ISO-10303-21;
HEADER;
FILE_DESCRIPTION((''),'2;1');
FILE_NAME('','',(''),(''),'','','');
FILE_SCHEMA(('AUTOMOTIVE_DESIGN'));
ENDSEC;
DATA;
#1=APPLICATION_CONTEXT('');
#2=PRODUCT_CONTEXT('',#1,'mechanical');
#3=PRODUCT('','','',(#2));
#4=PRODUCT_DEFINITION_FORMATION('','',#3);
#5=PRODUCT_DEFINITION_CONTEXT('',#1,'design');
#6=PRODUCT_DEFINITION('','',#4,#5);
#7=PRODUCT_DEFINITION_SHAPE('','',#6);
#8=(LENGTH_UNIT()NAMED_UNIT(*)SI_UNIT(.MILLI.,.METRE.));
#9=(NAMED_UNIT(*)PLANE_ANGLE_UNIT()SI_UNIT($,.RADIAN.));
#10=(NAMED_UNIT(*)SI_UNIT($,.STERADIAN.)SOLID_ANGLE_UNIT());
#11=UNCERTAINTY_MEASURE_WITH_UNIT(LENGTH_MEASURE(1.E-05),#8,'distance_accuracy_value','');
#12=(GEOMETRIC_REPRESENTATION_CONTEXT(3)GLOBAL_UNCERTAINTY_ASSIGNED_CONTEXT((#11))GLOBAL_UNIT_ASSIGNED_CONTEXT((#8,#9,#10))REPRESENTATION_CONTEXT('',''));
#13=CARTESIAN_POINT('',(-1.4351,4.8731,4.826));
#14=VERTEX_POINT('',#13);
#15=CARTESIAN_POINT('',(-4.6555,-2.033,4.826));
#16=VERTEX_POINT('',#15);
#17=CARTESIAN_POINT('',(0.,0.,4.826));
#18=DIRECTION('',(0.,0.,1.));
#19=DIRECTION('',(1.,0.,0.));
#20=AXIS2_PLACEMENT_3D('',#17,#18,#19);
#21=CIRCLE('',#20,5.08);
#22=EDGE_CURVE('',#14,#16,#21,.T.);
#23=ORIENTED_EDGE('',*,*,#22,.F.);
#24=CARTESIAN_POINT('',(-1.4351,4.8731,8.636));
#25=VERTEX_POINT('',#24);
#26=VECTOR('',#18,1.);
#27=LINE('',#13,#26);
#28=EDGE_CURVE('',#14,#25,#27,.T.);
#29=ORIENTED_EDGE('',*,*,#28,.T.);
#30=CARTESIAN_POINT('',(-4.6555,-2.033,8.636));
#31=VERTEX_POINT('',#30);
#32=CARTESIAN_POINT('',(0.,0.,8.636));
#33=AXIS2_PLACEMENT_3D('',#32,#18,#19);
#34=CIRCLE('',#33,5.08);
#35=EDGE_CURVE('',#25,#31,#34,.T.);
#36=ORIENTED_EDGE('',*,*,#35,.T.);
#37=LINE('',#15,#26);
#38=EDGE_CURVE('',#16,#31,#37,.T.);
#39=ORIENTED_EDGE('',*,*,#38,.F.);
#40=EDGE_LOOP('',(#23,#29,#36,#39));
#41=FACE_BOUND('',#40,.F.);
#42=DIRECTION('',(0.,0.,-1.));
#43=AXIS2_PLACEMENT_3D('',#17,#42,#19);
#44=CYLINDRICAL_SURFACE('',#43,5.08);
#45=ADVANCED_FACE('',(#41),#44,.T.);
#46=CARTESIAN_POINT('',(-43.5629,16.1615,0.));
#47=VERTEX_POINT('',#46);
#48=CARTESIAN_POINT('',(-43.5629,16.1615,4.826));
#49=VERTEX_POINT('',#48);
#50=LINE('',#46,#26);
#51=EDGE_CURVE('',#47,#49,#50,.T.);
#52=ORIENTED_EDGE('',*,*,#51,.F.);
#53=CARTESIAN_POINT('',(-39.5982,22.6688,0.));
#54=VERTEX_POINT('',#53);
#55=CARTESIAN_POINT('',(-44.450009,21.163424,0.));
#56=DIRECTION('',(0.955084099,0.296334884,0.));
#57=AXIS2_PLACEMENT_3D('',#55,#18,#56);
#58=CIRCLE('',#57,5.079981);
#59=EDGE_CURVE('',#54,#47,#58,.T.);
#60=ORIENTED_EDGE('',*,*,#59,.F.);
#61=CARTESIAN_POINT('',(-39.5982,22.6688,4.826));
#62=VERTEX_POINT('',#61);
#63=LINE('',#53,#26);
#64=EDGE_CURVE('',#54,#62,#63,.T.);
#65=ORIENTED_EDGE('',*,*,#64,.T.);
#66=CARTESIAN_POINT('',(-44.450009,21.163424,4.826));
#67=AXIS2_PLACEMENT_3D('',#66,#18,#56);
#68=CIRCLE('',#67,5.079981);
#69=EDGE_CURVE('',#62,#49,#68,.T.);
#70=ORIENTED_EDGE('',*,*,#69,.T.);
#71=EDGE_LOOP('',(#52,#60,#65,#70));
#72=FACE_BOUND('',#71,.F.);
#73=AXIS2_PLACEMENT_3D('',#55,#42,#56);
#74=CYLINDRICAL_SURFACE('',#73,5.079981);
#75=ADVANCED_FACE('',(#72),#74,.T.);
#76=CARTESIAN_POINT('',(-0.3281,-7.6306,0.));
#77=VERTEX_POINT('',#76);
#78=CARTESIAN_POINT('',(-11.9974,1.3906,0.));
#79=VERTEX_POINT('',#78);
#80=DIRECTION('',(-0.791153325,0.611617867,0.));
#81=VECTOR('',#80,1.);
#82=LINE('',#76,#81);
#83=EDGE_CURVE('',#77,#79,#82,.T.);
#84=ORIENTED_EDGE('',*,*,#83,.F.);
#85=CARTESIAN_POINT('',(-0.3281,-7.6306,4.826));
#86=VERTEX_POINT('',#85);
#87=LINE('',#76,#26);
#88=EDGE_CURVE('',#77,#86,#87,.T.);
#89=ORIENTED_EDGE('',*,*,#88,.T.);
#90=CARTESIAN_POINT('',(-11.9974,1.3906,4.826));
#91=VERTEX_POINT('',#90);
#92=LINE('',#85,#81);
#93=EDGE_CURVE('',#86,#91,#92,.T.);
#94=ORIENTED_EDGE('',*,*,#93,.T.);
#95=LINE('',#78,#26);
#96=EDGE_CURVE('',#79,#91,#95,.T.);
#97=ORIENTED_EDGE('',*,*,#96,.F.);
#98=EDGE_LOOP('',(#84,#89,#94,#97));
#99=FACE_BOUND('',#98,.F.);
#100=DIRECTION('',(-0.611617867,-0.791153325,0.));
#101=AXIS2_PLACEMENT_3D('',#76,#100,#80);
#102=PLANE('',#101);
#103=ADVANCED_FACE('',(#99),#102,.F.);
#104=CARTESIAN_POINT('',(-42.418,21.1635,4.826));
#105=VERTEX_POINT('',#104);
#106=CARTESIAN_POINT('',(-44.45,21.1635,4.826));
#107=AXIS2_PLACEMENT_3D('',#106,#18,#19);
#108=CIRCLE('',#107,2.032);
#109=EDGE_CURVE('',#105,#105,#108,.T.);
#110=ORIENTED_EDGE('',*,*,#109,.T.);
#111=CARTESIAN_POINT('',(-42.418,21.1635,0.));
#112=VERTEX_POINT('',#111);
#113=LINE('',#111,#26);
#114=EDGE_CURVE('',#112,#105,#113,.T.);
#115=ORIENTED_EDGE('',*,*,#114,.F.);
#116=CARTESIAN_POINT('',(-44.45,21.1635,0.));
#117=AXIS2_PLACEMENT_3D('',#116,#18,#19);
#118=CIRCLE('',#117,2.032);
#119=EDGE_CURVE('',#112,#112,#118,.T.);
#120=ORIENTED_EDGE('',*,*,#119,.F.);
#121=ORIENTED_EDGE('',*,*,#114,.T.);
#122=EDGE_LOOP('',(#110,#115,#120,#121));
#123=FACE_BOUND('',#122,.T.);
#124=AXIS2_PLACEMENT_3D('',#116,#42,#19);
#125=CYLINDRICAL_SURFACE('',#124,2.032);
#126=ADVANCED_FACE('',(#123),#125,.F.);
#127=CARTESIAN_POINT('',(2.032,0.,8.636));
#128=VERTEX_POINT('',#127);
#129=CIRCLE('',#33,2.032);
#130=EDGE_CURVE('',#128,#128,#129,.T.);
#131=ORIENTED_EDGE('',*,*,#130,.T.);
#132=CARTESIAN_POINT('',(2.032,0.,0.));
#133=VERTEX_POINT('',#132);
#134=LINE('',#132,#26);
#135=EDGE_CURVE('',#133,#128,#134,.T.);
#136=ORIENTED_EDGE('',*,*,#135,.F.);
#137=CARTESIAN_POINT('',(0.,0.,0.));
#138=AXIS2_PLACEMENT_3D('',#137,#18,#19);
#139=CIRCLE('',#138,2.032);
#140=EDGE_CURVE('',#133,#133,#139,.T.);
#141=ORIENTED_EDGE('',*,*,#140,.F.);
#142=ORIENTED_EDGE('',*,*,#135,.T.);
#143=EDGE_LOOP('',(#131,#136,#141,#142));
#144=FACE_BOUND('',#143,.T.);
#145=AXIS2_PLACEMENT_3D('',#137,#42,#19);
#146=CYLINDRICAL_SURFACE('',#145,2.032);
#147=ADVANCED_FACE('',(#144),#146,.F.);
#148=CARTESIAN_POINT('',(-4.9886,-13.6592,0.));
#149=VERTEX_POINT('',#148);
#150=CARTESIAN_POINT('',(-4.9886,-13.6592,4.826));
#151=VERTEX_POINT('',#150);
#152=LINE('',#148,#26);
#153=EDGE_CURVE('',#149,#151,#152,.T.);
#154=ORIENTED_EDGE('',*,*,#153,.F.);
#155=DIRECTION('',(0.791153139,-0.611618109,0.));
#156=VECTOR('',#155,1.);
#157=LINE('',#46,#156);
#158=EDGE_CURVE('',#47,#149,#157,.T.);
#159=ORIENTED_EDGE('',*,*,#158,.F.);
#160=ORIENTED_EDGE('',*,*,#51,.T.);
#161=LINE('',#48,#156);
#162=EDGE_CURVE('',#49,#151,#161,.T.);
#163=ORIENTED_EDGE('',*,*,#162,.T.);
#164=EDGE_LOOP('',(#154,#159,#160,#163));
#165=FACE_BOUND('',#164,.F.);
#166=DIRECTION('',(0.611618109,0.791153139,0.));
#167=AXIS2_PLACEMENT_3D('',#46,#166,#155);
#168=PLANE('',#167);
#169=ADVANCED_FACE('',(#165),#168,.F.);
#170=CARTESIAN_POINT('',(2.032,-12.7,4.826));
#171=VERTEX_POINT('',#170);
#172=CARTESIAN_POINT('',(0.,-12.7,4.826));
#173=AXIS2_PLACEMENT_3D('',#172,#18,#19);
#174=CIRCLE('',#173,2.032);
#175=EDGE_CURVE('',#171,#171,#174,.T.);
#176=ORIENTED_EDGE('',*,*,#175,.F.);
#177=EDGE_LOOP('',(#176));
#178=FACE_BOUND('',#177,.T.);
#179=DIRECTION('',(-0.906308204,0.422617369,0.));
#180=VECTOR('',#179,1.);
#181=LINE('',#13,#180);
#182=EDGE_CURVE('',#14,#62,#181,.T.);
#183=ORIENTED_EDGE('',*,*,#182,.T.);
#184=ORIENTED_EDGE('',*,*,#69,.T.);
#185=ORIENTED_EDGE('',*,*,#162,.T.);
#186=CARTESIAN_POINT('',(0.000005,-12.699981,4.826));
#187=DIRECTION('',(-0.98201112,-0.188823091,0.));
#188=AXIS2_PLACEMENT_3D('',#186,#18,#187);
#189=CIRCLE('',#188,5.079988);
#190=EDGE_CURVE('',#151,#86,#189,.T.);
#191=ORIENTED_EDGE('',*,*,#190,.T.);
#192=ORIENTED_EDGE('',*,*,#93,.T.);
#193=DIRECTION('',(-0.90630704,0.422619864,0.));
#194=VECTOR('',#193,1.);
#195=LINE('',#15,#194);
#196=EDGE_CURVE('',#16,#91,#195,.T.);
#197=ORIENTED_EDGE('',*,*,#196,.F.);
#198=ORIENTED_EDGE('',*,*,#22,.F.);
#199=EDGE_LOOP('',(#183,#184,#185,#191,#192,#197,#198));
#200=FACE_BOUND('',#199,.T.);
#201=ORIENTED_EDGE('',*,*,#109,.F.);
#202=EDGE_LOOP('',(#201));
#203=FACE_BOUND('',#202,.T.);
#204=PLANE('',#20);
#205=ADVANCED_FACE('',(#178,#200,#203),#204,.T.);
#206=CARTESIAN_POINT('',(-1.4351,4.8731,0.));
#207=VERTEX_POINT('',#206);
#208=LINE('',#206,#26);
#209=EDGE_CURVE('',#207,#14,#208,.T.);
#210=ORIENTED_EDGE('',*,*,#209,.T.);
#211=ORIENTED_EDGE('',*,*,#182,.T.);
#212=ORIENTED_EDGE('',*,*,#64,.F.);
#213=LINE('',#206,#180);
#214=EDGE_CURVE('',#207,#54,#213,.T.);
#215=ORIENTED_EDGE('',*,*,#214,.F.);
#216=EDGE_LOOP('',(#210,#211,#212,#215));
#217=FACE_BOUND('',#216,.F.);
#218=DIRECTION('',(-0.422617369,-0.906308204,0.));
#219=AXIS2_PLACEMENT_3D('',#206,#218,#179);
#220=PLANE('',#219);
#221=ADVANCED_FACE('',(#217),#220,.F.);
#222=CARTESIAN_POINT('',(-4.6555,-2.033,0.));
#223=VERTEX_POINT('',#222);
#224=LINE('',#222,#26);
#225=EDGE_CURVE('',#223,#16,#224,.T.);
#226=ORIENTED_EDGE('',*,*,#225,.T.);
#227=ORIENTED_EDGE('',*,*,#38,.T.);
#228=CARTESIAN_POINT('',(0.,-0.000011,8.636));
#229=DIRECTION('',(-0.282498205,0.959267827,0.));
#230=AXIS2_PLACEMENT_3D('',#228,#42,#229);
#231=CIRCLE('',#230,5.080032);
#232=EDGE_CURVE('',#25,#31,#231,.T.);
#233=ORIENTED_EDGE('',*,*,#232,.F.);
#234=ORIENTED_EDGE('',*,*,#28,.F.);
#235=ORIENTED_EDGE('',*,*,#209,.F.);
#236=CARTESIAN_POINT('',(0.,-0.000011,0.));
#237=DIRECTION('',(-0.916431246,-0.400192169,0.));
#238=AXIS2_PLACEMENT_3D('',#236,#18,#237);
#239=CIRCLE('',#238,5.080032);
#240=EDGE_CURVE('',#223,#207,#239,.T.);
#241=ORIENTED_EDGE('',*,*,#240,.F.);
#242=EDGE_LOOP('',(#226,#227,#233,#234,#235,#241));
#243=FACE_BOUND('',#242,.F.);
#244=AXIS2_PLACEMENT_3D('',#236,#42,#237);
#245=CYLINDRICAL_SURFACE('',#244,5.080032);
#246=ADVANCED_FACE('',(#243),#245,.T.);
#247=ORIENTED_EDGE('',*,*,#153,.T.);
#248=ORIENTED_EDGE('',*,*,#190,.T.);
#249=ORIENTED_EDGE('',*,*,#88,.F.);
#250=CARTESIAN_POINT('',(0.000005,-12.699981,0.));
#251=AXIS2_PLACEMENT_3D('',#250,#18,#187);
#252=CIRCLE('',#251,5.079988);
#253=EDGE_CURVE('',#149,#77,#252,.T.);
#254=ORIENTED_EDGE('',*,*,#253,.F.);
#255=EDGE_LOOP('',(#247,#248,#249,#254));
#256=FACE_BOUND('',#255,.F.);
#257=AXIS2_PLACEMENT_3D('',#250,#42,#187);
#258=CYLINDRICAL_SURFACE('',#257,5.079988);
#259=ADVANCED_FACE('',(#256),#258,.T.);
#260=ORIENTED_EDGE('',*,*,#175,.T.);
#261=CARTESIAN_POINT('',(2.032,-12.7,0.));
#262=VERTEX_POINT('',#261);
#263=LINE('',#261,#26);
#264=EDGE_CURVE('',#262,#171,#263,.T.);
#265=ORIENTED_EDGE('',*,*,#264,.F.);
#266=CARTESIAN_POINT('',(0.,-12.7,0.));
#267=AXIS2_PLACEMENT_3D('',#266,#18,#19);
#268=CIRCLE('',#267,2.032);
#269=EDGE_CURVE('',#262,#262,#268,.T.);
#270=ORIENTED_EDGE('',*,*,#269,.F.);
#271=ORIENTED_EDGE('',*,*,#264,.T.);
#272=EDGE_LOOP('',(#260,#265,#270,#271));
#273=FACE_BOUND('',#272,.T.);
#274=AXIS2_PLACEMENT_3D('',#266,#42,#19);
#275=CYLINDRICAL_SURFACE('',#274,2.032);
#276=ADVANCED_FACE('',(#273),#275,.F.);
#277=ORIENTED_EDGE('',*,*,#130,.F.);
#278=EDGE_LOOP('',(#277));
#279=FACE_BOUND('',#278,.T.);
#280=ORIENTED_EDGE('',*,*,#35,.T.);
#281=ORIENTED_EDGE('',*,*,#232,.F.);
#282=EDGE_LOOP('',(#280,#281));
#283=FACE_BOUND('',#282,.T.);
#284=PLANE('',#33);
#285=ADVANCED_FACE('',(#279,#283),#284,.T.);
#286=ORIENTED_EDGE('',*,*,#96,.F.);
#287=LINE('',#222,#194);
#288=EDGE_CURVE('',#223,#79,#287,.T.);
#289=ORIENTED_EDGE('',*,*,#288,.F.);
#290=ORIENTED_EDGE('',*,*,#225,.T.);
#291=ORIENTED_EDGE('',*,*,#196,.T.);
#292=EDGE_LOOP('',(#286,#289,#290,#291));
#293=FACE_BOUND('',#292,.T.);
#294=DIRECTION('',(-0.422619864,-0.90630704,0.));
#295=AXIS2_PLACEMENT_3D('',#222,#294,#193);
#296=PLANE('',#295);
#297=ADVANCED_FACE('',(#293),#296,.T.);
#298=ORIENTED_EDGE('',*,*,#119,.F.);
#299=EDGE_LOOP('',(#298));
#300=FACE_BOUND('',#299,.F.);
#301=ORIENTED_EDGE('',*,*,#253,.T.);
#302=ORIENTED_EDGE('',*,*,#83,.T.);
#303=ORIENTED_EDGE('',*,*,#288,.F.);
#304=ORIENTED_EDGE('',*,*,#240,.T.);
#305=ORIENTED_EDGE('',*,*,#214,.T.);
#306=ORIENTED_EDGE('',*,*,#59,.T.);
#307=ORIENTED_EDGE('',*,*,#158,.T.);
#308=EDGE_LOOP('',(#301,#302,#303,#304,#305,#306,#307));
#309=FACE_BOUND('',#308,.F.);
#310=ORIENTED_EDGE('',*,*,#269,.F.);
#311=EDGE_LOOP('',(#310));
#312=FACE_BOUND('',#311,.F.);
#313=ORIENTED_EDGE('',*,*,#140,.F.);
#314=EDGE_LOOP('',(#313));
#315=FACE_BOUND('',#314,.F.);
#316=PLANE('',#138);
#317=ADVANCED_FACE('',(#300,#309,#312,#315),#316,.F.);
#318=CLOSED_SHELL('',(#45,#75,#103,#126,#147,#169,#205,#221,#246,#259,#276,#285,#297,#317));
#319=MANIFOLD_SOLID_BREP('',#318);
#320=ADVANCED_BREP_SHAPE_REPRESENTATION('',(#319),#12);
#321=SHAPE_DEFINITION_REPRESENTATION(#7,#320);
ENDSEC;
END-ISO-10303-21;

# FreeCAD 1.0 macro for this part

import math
import FreeCAD as App
import Part
import Sketcher
Q = App.Units.Quantity

doc = App.newDocument("Part")
body = doc.addObject("PartDesign::Body", "Body")

# Sketch on XY plane
sketch1 = doc.addObject("Sketcher::SketchObject", "Sketch")
body.addObject(sketch1)
sketch1.AttachmentSupport = (doc.XY_Plane, [""])
sketch1.MapMode = "FlatFace"
sketch1.addGeometry(Part.LineSegment(App.Vector(-12, 1.4, 0), App.Vector(-4.7, -2, 0)), False)
sketch1.addGeometry(Part.ArcOfCircle(Part.Circle(App.Vector(0, 0, 0), App.Vector(0, 0, 1), 5.1), math.radians(-156), math.radians(106)), False)
sketch1.addGeometry(Part.LineSegment(App.Vector(-1.4, 4.9, 0), App.Vector(-39.6, 22.7, 0)), False)
sketch1.addGeometry(Part.ArcOfCircle(Part.Circle(App.Vector(-44.5, 21.2, 0), App.Vector(0, 0, 1), 5.1), math.radians(17), math.radians(280)), False)
sketch1.addGeometry(Part.LineSegment(App.Vector(-43.6, 16.2, 0), App.Vector(-5, -13.7, 0)), False)
sketch1.addGeometry(Part.ArcOfCircle(Part.Circle(App.Vector(0, -12.7, 0), App.Vector(0, 0, 1), 5.1), math.radians(-169), math.radians(94)), False)
sketch1.addGeometry(Part.LineSegment(App.Vector(-0.3, -7.6, 0), App.Vector(-12, 1.4, 0)), False)
sketch1.addGeometry(Part.Circle(App.Vector(0, -12.7, 0), App.Vector(0, 0, 1), 2), False)
sketch1.addGeometry(Part.Circle(App.Vector(0, 0, 0), App.Vector(0, 0, 1), 2), False)
sketch1.addGeometry(Part.Circle(App.Vector(-44.5, 21.2, 0), App.Vector(0, 0, 1), 2), False)
sketch1.addConstraint(Sketcher.Constraint("Coincident", 0, 2, 1, 1))
sketch1.addConstraint(Sketcher.Constraint("Coincident", 1, 2, 2, 1))
sketch1.addConstraint(Sketcher.Constraint("Coincident", 2, 2, 3, 1))
sketch1.addConstraint(Sketcher.Constraint("Coincident", 3, 2, 4, 1))
sketch1.addConstraint(Sketcher.Constraint("Coincident", 4, 2, 5, 1))
sketch1.addConstraint(Sketcher.Constraint("Coincident", 5, 2, 6, 1))
sketch1.addConstraint(Sketcher.Constraint("Coincident", 6, 2, 0, 1))
sketch1.addConstraint(Sketcher.Constraint("Coincident", 1, 3, -1, 1))
sketch1.addConstraint(Sketcher.Constraint("Coincident", 8, 3, -1, 1))
sketch1.addConstraint(Sketcher.Constraint("Coincident", 7, 3, 5, 3))
sketch1.addConstraint(Sketcher.Constraint("Coincident", 9, 3, 3, 3))
sketch1.addConstraint(Sketcher.Constraint("Equal", 1, 3))
sketch1.addConstraint(Sketcher.Constraint("Equal", 3, 5))
sketch1.addConstraint(Sketcher.Constraint("Equal", 7, 8))
sketch1.addConstraint(Sketcher.Constraint("Equal", 8, 9))
sketch1.addConstraint(Sketcher.Constraint("PointOnObject", 5, 3, -2))
sketch1.addConstraint(Sketcher.Constraint("Parallel", 0, 2))
sketch1.addConstraint(Sketcher.Constraint("Parallel", 4, 6))
sketch1.addConstraint(Sketcher.Constraint("Radius", 1, Q("0.2 in")))
sketch1.addConstraint(Sketcher.Constraint("Diameter", 7, Q("0.16 in")))
sketch1.addConstraint(Sketcher.Constraint("Angle", 0, Q("-25 deg")))
sketch1.addConstraint(Sketcher.Constraint("DistanceY", 5, 3, -1, 1, Q("0.5 in")))
sketch1.addConstraint(Sketcher.Constraint("DistanceX", 3, 3, -1, 1, Q("1.75 in")))
sketch1.addConstraint(Sketcher.Constraint("Distance", 2, Q("1.6578 in")))
sketch1.addConstraint(Sketcher.Constraint("Distance", 6, Q("0.5807 in")))
sketch1.addConstraint(Sketcher.Constraint("DistanceY", -1, 1, 3, 3, Q("0.8332 in")))
sketch1.addConstraint(Sketcher.Constraint("DistanceX", 4, 2, -1, 1, Q("0.1964 in")))
sketch1.addConstraint(Sketcher.Constraint("DistanceY", 0, 2, 1, 2, Q("0.2719 in")))
sketch1.addConstraint(Sketcher.Constraint("DistanceX", 3, 2, 2, 2, Q("0.1561 in")))
pad1 = doc.addObject("PartDesign::Pad", "Pad")
body.addObject(pad1)
pad1.Profile = sketch1
pad1.Length = Q("0.19 in")

# Sketch on XY plane
sketch2 = doc.addObject("Sketcher::SketchObject", "Sketch001")
body.addObject(sketch2)
sketch2.AttachmentSupport = (doc.XY_Plane, [""])
sketch2.MapMode = "FlatFace"
sketch2.AttachmentOffset = App.Placement(App.Vector(0, 0, 0.19 * 25.4), App.Rotation())
sketch2.addGeometry(Part.ArcOfCircle(Part.Circle(App.Vector(0, 0, 0), App.Vector(0, 0, 1), 5.1), math.radians(106), math.radians(204)), False)
sketch2.addGeometry(Part.ArcOfCircle(Part.Circle(App.Vector(0, 0, 0), App.Vector(0, 0, 1), 5.1), math.radians(-156), math.radians(106)), False)
sketch2.addGeometry(Part.Circle(App.Vector(0, 0, 0), App.Vector(0, 0, 1), 2), False)
sketch2.addConstraint(Sketcher.Constraint("Tangent", 0, 1, 1, 2))
sketch2.addConstraint(Sketcher.Constraint("Coincident", 1, 1, 0, 2))
sketch2.addConstraint(Sketcher.Constraint("Coincident", 0, 3, -1, 1))
sketch2.addConstraint(Sketcher.Constraint("Coincident", 2, 3, -1, 1))
sketch2.addConstraint(Sketcher.Constraint("Radius", 0, Q("0.2 in")))
sketch2.addConstraint(Sketcher.Constraint("Diameter", 2, Q("0.16 in")))
sketch2.addConstraint(Sketcher.Constraint("DistanceX", 0, 1, -1, 1, Q("0.0565 in")))
sketch2.addConstraint(Sketcher.Constraint("DistanceY", 1, 1, 0, 1, Q("0.2719 in")))
pad2 = doc.addObject("PartDesign::Pad", "Pad001")
body.addObject(pad2)
pad2.Profile = sketch2
pad2.Length = Q("0.15 in")

doc.recompute()
